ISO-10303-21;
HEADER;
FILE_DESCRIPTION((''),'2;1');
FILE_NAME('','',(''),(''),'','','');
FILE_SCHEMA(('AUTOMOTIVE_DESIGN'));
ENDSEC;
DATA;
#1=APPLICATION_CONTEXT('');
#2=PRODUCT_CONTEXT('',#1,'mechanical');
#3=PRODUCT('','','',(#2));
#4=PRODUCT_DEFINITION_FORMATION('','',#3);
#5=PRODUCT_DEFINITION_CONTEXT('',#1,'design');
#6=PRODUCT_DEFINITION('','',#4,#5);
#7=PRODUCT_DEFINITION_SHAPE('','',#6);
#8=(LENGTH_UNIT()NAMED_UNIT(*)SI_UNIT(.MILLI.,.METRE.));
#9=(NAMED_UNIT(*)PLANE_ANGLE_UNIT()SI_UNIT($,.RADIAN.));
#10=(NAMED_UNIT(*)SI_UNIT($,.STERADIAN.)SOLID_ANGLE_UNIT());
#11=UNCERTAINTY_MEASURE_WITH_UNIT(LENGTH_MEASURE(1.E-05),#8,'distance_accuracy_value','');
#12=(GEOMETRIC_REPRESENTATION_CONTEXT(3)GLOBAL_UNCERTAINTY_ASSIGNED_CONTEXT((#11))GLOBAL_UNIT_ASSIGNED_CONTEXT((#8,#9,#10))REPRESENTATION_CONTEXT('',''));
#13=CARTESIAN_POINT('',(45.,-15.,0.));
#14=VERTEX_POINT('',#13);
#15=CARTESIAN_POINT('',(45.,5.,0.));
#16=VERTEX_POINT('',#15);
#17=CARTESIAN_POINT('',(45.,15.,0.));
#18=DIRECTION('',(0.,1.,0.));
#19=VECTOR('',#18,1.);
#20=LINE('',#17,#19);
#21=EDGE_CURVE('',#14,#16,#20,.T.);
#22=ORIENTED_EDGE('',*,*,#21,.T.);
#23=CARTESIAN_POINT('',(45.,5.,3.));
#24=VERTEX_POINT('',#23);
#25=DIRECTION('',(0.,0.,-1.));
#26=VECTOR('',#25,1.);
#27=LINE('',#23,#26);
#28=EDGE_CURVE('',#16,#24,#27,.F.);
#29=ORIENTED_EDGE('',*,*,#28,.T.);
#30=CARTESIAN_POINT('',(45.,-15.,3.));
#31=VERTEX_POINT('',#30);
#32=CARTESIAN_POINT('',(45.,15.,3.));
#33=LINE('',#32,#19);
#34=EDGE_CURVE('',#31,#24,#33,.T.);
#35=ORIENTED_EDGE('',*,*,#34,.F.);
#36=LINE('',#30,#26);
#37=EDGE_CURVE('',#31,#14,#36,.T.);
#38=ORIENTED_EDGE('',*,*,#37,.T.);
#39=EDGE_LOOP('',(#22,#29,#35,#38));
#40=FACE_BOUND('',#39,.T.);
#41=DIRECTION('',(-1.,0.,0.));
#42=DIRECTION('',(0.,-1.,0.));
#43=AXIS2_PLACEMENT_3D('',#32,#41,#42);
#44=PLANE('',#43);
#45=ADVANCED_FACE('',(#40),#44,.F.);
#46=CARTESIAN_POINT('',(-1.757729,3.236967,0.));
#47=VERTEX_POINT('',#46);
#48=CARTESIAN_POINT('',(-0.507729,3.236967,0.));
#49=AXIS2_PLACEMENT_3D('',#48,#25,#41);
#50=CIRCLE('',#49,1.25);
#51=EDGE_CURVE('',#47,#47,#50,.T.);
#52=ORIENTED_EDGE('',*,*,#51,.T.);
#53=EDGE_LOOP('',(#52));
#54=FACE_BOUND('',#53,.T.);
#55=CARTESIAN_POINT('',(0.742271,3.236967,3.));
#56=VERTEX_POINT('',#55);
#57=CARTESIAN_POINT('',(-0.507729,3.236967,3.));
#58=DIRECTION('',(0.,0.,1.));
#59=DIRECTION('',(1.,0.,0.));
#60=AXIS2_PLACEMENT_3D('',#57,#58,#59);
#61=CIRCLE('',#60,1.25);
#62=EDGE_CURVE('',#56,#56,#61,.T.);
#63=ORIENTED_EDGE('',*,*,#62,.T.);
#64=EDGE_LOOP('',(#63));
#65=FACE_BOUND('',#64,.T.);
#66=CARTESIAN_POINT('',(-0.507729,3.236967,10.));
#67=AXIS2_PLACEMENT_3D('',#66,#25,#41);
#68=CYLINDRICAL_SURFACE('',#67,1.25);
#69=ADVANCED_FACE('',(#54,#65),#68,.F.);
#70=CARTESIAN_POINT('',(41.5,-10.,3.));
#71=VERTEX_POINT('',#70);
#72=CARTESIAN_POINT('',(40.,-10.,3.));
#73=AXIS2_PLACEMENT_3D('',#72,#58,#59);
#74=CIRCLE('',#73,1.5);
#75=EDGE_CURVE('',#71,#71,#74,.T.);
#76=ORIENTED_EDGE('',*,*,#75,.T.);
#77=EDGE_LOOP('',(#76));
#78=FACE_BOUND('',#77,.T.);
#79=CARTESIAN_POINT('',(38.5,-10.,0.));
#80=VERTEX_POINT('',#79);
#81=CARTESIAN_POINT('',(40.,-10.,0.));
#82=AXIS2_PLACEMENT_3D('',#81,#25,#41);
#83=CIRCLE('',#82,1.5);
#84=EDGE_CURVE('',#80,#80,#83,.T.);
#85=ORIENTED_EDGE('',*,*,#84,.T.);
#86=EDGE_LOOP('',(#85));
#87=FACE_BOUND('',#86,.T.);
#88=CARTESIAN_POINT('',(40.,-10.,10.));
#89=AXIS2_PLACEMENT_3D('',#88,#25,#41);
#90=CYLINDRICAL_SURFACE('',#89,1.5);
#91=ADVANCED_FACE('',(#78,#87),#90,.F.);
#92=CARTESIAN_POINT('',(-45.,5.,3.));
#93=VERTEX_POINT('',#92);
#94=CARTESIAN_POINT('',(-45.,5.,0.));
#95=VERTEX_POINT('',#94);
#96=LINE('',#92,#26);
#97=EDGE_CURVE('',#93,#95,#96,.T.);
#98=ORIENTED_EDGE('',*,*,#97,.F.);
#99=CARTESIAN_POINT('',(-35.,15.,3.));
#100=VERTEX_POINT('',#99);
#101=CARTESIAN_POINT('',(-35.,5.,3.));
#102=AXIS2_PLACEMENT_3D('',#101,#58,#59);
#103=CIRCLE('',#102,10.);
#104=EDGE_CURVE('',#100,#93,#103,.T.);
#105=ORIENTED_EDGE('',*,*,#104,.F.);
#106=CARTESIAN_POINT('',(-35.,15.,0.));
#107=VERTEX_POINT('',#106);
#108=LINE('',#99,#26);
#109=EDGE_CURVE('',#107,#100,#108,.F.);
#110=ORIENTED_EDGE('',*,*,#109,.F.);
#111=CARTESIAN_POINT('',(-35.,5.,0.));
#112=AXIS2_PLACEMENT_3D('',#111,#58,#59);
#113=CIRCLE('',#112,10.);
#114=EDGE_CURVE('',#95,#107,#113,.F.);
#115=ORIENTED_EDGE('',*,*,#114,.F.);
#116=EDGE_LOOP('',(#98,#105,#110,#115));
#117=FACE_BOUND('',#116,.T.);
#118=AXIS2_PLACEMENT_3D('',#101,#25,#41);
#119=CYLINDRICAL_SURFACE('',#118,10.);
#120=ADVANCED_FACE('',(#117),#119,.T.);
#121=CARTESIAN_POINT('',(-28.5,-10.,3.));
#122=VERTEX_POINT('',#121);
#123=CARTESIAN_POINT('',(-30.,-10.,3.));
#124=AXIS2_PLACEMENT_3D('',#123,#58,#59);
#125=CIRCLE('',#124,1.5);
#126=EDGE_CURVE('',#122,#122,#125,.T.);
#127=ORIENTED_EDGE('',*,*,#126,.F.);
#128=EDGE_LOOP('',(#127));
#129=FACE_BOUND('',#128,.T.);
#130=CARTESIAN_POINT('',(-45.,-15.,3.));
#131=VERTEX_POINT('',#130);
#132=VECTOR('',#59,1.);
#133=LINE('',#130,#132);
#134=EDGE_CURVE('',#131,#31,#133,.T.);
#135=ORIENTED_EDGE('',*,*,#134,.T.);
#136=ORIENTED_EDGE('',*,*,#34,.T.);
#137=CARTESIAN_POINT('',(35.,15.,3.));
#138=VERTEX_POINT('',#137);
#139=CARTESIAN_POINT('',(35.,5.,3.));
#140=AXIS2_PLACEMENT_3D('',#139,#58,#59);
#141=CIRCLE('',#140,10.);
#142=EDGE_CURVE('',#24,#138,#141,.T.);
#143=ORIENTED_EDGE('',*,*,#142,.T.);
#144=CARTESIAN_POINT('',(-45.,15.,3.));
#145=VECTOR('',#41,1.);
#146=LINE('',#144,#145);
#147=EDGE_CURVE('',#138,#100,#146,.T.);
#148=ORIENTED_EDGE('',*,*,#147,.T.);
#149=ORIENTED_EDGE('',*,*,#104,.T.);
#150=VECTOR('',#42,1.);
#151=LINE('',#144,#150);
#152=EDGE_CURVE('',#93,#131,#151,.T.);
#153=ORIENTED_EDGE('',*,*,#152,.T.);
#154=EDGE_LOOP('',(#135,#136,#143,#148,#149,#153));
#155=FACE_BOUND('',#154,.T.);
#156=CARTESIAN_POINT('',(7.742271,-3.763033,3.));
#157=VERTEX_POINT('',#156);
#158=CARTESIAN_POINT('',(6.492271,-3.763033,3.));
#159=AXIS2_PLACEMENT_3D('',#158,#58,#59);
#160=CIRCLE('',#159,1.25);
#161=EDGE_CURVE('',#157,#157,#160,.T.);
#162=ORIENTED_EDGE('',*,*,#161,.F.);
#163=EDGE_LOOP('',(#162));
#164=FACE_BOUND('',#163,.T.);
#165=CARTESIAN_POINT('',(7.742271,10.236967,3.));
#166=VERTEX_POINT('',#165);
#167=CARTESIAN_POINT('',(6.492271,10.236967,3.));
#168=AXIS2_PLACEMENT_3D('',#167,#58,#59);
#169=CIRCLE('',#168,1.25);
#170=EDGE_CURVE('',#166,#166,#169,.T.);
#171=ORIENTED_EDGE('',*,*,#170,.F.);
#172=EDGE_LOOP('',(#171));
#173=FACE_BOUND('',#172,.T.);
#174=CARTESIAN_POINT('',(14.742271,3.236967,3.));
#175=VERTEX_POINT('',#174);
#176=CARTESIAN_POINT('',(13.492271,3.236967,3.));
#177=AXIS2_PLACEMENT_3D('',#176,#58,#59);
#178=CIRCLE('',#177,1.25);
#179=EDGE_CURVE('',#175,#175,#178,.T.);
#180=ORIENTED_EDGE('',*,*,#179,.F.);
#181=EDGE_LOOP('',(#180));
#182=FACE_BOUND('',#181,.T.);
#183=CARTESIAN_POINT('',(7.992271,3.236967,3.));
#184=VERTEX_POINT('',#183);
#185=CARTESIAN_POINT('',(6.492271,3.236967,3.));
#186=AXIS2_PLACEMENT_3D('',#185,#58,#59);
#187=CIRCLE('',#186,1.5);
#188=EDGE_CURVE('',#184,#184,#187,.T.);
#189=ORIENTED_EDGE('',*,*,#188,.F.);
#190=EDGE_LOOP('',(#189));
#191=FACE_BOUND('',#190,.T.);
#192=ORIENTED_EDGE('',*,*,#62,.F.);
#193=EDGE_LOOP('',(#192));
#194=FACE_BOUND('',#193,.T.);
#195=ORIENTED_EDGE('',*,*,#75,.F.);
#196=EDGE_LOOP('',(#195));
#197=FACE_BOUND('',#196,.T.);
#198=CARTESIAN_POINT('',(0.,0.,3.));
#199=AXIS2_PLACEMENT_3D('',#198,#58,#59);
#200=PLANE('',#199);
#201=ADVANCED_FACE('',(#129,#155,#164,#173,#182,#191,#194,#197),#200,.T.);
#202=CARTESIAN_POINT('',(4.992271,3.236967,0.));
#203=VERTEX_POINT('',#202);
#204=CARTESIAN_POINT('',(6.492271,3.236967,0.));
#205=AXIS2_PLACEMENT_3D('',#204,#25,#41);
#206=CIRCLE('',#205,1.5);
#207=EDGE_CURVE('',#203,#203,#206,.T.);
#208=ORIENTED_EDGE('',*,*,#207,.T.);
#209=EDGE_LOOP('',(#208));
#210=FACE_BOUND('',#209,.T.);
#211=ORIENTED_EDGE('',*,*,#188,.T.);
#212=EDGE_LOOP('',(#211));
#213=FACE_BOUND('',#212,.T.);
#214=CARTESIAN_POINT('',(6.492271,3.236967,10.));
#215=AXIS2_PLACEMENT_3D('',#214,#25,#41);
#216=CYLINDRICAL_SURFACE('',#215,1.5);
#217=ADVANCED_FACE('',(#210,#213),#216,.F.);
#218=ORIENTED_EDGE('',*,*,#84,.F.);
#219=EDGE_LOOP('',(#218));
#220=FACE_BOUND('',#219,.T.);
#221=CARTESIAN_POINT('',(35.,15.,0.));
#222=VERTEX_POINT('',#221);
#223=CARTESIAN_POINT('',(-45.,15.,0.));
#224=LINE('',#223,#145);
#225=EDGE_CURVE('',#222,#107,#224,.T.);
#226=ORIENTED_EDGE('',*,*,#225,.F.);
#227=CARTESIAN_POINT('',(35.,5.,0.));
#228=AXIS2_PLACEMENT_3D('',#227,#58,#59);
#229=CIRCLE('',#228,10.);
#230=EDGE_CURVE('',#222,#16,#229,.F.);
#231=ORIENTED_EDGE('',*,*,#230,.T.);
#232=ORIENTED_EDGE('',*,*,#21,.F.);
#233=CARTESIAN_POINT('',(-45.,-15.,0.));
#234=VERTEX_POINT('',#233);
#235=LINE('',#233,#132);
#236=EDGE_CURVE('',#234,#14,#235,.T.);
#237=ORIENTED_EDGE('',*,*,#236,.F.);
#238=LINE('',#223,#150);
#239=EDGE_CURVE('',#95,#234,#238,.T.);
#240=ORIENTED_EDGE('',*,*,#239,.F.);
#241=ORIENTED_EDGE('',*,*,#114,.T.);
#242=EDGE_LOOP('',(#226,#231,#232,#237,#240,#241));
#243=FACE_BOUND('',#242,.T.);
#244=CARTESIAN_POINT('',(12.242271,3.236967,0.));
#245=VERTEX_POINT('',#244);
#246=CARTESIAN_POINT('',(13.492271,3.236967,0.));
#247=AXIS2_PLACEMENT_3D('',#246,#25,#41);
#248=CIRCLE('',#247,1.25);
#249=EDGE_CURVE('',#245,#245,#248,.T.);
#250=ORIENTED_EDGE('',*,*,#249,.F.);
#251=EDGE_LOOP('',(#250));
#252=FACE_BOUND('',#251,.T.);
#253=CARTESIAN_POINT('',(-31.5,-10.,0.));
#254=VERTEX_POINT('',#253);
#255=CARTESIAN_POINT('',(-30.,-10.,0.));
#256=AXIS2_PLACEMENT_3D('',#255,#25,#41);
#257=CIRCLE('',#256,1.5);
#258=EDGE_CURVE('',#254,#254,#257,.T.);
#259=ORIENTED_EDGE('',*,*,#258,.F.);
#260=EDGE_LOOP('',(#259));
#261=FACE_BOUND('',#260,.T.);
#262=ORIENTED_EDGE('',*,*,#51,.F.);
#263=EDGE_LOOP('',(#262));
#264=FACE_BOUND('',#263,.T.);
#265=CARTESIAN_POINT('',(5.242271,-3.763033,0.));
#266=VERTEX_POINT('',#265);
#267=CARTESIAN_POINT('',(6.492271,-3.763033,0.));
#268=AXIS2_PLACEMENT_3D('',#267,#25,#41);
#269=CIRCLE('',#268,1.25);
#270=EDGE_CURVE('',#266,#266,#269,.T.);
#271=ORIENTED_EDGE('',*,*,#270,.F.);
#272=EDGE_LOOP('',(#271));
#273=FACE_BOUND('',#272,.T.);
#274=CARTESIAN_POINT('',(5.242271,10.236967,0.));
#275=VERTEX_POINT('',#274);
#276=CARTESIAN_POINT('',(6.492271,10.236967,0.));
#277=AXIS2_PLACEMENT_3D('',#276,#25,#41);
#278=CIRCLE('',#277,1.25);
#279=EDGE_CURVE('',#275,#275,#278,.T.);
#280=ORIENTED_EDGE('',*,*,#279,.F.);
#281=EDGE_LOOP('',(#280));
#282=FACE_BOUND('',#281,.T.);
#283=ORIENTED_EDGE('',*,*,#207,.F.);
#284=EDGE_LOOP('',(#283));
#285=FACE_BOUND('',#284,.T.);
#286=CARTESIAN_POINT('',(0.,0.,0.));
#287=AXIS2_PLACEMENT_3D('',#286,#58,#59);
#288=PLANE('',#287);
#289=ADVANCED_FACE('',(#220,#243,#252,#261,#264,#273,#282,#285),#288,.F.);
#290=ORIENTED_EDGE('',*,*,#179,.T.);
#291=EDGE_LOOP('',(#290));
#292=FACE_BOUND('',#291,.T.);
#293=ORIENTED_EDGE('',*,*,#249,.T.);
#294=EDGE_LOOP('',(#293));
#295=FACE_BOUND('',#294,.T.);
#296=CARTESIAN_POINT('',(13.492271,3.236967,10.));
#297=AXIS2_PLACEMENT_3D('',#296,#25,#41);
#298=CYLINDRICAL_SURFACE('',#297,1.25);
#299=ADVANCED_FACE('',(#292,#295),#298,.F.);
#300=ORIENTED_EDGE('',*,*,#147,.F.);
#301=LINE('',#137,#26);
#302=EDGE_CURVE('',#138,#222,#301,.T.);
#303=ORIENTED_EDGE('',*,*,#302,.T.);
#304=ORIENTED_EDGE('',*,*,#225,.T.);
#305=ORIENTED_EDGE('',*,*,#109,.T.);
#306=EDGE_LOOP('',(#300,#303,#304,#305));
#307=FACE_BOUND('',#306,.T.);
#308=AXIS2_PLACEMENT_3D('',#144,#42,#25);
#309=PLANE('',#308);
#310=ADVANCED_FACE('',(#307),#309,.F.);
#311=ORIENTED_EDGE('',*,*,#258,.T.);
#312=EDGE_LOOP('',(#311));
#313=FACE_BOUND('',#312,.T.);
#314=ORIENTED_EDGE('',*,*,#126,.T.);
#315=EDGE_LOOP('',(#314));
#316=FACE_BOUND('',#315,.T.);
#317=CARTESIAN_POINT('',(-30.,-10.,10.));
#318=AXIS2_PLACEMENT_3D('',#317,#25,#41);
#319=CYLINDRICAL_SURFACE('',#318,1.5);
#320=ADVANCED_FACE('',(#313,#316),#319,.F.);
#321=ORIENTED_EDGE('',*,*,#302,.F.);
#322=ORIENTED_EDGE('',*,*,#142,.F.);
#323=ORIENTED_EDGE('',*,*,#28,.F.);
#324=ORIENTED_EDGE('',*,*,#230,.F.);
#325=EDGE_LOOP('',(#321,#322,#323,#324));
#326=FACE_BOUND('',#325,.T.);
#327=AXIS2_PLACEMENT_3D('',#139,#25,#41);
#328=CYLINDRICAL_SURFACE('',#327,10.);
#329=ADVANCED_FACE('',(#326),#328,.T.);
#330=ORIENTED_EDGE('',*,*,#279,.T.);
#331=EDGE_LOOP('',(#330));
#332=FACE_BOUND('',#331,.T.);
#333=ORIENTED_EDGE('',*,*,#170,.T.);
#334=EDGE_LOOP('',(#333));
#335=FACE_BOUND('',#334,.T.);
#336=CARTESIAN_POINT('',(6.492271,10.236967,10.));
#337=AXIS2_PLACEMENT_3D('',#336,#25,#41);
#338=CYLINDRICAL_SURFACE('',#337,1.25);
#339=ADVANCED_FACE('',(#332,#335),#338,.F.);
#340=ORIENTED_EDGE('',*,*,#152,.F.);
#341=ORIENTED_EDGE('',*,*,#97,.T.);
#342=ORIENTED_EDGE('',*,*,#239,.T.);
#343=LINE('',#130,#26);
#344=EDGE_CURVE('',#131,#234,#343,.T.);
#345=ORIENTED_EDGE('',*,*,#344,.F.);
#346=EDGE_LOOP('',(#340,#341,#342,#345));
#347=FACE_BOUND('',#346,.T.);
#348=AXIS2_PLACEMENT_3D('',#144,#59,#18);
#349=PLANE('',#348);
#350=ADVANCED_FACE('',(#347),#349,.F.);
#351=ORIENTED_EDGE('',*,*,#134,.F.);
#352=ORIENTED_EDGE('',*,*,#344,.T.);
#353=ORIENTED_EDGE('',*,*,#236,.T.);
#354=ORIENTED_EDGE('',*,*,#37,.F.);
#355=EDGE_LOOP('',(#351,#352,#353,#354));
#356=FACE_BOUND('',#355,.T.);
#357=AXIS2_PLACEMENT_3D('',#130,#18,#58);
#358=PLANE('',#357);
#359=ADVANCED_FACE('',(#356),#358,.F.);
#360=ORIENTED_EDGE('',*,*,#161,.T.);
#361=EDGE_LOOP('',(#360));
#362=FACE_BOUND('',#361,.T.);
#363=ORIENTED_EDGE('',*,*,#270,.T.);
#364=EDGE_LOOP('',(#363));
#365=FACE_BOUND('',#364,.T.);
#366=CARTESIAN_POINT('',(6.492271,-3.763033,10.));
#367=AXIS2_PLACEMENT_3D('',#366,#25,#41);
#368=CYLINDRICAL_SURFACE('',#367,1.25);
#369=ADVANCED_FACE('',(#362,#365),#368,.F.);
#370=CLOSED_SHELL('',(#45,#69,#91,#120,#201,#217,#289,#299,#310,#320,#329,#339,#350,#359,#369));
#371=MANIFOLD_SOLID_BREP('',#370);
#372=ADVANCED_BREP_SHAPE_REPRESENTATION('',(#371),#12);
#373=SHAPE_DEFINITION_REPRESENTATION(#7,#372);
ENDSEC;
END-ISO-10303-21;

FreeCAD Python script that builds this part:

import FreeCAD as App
import Part
import Sketcher
from FreeCAD import Vector


def edges_at(feature, points):
    """Names of the edges that pass closest to the given points."""
    edges = feature.Shape.Edges
    near = lambda p: min(range(len(edges)), key=lambda i: edges[i].distToShape(Part.Vertex(*p))[0])
    return sorted({f"Edge{near(p) + 1}" for p in points})


def add_polygon(sketch, points):
    """Adds a closed chain of lines whose ends are joined by coincident constraints."""
    first, n = sketch.GeometryCount, len(points)
    for a, b in zip(points, points[1:] + points[:1]):
        sketch.addGeometry(Part.LineSegment(App.Vector(*a, 0), App.Vector(*b, 0)), False)
    for i in range(n):
        sketch.addConstraint(Sketcher.Constraint("Coincident", first + i, 2, first + (i + 1) % n, 1))

doc = App.newDocument("Part")
body = doc.addObject("PartDesign::Body", "Body")

# Sketch on XY plane
sketch1 = body.newObject("Sketcher::SketchObject", "Sketch")
sketch1.AttachmentSupport = (doc.getObject("XY_Plane"), [""])
sketch1.MapMode = "FlatFace"
add_polygon(sketch1, [(-45, 15), (-45, -15), (45, -15), (45, 15)])  # lines 0-3
sketch1.addConstraint(Sketcher.Constraint("Vertical", 0))
sketch1.addConstraint(Sketcher.Constraint("Horizontal", 1))
sketch1.addConstraint(Sketcher.Constraint("Vertical", 2))
sketch1.addConstraint(Sketcher.Constraint("Horizontal", 3))
sketch1.addConstraint(Sketcher.Constraint("Symmetric", 0, 2, 2, 2, -1, 1))
sketch1.addConstraint(Sketcher.Constraint("DistanceX", 1, 1, 1, 2, 90.0))
sketch1.addConstraint(Sketcher.Constraint("DistanceY", 0, 2, 0, 1, 30.0))
pad1 = body.newObject("PartDesign::Pad", "Pad")
pad1.Profile = sketch1
pad1.Length = 3

# Sketch on XY plane
sketch2 = body.newObject("Sketcher::SketchObject", "Sketch001")
sketch2.AttachmentSupport = (doc.getObject("XY_Plane"), [""])
sketch2.MapMode = "FlatFace"
sketch2.addGeometry(Part.Circle(Vector(6.5, 3.2, 0), Vector(0, 0, 1), 1.5), False)
sketch2.addGeometry(Part.Circle(Vector(13.5, 3.2, 0), Vector(0, 0, 1), 1.2), False)
sketch2.addGeometry(Part.Circle(Vector(6.5, 10.2, 0), Vector(0, 0, 1), 1.2), False)
sketch2.addGeometry(Part.Circle(Vector(6.5, -3.8, 0), Vector(0, 0, 1), 1.2), False)
sketch2.addGeometry(Part.Circle(Vector(-0.5, 3.2, 0), Vector(0, 0, 1), 1.2), False)
sketch2.addConstraint(Sketcher.Constraint("Equal", 1, 2))
sketch2.addConstraint(Sketcher.Constraint("Equal", 2, 3))
sketch2.addConstraint(Sketcher.Constraint("Equal", 3, 4))
sketch2.addConstraint(Sketcher.Constraint("Horizontal", 0, 3, 1, 3))
sketch2.addConstraint(Sketcher.Constraint("Horizontal", 1, 3, 4, 3))
sketch2.addConstraint(Sketcher.Constraint("Vertical", 0, 3, 2, 3))
sketch2.addConstraint(Sketcher.Constraint("Vertical", 2, 3, 3, 3))
sketch2.addConstraint(Sketcher.Constraint("Diameter", 0, 3.0))
sketch2.addConstraint(Sketcher.Constraint("Diameter", 1, 2.5))
sketch2.addConstraint(Sketcher.Constraint("DistanceX", 0, 3, 1, 3, 7.0))
sketch2.addConstraint(Sketcher.Constraint("DistanceY", 0, 3, 2, 3, 7.0))
sketch2.addConstraint(Sketcher.Constraint("DistanceY", 3, 3, 0, 3, 7.0))
sketch2.addConstraint(Sketcher.Constraint("DistanceX", 4, 3, 0, 3, 7.0))
sketch2.addConstraint(Sketcher.Constraint("DistanceX", -1, 1, 0, 3, 6.492271))
sketch2.addConstraint(Sketcher.Constraint("DistanceY", -1, 1, 0, 3, 3.236967))
pocket1 = body.newObject("PartDesign::Pocket", "Pocket")
pocket1.Profile = sketch2
pocket1.Length = 10
pocket1.Reversed = True

# Sketch on XY plane
sketch3 = body.newObject("Sketcher::SketchObject", "Sketch002")
sketch3.AttachmentSupport = (doc.getObject("XY_Plane"), [""])
sketch3.MapMode = "FlatFace"
sketch3.addGeometry(Part.Circle(Vector(40, -10, 0), Vector(0, 0, 1), 1.5), False)
sketch3.addGeometry(Part.Circle(Vector(-30, -10, 0), Vector(0, 0, 1), 1.5), False)
sketch3.addConstraint(Sketcher.Constraint("Equal", 0, 1))
sketch3.addConstraint(Sketcher.Constraint("Horizontal", 0, 3, 1, 3))
sketch3.addConstraint(Sketcher.Constraint("Diameter", 0, 3.0))
sketch3.addConstraint(Sketcher.Constraint("DistanceX", -1, 1, 0, 3, 40.0))
sketch3.addConstraint(Sketcher.Constraint("DistanceY", 0, 3, -1, 1, 10.0))
sketch3.addConstraint(Sketcher.Constraint("DistanceX", 1, 3, -1, 1, 30.0))
pocket2 = body.newObject("PartDesign::Pocket", "Pocket001")
pocket2.Profile = sketch3
pocket2.Length = 10
pocket2.Reversed = True
doc.recompute()

fillet = body.newObject("PartDesign::Fillet", "Fillet")
fillet.Base = (pocket2, edges_at(pocket2, [(-45, 15, 1.5), (45, 15, 1.5)]))
fillet.Radius = 10

doc.recompute()
